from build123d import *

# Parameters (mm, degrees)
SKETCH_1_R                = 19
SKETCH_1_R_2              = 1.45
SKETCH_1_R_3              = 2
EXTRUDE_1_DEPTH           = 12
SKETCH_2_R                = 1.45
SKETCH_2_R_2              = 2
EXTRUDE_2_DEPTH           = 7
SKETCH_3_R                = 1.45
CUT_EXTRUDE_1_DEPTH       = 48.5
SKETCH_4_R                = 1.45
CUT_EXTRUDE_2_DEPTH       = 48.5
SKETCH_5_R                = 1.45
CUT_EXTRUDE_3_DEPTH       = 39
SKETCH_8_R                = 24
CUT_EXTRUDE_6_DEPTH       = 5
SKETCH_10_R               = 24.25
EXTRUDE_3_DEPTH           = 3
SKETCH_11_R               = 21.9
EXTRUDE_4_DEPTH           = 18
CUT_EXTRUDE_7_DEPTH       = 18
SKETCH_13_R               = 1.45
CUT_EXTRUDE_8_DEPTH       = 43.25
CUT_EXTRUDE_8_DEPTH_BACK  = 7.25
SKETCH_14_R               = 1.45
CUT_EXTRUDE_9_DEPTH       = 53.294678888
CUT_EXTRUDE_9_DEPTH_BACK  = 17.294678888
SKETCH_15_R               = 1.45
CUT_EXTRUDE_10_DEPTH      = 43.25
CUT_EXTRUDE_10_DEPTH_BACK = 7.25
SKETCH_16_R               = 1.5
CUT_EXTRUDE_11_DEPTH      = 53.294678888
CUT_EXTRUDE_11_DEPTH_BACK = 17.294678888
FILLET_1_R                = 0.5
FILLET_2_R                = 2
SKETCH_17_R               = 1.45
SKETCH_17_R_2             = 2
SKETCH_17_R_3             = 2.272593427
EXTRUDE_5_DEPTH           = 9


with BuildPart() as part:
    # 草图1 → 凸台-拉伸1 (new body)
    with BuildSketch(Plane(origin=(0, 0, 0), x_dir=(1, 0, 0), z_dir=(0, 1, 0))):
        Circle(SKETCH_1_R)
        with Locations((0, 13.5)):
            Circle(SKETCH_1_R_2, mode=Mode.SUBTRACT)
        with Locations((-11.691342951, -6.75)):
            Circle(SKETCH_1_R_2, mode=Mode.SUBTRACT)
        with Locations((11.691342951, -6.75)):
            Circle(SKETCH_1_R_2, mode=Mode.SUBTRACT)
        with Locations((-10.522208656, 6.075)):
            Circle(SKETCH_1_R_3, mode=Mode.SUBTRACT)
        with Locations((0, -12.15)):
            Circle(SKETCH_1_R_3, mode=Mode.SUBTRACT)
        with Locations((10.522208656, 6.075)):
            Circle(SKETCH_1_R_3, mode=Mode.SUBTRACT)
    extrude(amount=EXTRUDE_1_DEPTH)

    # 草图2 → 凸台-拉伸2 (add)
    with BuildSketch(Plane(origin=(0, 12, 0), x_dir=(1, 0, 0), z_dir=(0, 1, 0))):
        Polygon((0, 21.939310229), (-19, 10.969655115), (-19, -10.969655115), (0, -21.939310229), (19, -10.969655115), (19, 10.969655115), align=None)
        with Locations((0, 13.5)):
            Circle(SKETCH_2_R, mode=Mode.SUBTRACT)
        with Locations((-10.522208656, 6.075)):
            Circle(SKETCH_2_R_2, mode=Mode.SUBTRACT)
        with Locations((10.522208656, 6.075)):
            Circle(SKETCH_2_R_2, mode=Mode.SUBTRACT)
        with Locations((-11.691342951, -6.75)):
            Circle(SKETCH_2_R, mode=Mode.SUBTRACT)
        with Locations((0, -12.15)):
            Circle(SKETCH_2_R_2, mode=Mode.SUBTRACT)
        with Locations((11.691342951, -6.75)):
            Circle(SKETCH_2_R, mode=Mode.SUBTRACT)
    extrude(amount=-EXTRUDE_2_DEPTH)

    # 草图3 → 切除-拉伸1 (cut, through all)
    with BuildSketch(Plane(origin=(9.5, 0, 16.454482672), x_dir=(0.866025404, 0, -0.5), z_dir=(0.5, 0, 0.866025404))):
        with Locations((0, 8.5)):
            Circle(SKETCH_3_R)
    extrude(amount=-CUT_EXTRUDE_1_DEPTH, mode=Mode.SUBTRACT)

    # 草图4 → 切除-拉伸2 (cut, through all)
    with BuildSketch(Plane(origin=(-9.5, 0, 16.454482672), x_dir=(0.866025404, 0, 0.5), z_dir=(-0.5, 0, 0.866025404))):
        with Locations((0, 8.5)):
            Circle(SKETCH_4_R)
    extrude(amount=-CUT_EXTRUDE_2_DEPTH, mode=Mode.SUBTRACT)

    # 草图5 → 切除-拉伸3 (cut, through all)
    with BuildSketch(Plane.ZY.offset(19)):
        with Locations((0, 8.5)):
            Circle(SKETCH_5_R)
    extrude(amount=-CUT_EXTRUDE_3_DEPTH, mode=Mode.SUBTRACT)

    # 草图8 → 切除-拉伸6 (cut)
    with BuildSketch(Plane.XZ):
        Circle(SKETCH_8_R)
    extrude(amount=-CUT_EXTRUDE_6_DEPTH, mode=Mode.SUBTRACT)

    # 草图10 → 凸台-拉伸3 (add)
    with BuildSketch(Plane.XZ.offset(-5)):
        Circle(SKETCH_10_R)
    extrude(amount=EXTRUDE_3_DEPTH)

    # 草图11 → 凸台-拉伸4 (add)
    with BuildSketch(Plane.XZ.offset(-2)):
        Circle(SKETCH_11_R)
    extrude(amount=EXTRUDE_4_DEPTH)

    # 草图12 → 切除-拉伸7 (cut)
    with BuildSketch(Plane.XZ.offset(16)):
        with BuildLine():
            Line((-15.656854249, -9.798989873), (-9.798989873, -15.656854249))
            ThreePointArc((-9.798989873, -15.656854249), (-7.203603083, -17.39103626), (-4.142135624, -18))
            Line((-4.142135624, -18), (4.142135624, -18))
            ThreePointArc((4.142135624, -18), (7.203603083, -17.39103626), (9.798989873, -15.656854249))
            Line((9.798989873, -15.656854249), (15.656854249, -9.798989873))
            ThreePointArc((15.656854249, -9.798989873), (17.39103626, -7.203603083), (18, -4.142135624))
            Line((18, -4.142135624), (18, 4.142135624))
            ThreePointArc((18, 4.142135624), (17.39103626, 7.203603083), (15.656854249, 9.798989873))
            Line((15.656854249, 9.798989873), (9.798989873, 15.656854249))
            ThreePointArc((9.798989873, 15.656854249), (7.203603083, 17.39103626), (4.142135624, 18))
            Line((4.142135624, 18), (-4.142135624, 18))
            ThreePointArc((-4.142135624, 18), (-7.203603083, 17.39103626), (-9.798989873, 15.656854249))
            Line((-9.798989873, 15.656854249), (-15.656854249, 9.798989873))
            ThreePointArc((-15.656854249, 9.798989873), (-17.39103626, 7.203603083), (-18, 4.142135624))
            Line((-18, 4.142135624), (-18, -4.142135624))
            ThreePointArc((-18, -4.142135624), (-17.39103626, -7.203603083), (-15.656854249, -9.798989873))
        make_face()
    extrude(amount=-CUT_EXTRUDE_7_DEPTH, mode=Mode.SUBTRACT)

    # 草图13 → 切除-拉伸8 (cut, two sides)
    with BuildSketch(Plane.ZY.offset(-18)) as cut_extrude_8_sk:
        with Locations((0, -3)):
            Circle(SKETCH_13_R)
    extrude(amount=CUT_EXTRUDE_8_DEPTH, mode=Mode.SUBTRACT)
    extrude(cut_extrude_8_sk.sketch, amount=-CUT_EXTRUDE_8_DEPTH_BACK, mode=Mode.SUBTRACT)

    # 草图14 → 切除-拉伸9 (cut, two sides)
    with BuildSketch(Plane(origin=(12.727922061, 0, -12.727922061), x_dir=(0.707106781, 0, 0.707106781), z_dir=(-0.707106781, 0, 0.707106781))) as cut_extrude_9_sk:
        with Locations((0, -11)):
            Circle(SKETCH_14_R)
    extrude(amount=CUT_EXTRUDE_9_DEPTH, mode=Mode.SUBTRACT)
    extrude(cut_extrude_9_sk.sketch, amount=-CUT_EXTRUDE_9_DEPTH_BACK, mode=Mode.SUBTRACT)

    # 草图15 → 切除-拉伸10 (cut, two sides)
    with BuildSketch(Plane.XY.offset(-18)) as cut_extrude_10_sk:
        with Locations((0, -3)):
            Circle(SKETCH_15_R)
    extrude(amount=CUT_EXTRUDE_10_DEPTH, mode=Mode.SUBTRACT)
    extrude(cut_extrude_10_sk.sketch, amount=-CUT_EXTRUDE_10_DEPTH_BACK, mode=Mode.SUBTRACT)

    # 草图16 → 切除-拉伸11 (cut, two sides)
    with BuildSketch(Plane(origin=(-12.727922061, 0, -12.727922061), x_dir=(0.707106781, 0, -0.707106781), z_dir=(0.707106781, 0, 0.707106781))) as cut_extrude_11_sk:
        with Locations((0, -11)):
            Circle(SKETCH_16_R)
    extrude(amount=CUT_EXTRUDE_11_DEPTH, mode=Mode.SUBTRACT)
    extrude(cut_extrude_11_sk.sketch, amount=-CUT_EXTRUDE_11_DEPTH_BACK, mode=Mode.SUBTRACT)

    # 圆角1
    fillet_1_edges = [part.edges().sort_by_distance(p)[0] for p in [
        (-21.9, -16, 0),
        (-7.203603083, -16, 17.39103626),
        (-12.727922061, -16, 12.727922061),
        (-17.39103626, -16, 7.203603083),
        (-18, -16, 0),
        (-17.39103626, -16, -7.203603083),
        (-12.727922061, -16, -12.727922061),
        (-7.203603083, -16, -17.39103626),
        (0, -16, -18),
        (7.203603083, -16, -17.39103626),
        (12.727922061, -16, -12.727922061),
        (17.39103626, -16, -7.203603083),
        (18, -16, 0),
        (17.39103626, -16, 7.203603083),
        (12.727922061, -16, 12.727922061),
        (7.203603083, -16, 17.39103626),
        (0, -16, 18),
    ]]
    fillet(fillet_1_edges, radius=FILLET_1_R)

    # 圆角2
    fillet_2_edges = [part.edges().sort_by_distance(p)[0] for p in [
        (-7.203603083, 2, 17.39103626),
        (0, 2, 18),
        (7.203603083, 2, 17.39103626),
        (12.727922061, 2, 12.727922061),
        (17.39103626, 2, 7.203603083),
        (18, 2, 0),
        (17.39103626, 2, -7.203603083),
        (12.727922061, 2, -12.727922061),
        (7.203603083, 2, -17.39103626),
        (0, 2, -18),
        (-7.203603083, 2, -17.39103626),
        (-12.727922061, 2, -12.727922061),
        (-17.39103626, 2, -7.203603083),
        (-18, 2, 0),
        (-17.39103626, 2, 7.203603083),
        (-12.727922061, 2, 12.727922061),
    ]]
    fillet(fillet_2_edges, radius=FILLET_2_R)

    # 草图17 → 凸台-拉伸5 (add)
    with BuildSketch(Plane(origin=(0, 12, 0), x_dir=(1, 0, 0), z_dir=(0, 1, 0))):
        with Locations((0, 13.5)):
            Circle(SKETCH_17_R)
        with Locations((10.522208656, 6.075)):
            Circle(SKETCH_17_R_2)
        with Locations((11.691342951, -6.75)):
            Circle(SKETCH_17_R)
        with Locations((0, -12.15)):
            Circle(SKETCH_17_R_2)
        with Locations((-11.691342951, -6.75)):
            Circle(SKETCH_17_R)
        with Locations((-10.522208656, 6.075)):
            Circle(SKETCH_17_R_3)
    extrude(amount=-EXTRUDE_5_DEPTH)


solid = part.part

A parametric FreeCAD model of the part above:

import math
import FreeCAD as App
import Part
import Sketcher

V = App.Vector
Q = App.Units.Quantity


def edges_at(feature, points):
    """Names of the edges that pass closest to the given points."""
    edges = feature.Shape.Edges
    near = lambda p: min(range(len(edges)), key=lambda i: edges[i].distToShape(Part.Vertex(*p))[0])
    return sorted({f"Edge{near(p) + 1}" for p in points})

doc = App.newDocument("Part")
body = doc.addObject("PartDesign::Body", "Body")

# Sketch on XZ plane
sketch1 = body.newObject("Sketcher::SketchObject", "Sketch")
sketch1.AttachmentSupport = (doc.getObject("XZ_Plane"), [""])
sketch1.MapMode = "FlatFace"
sketch1.addGeometry(Part.Circle(V(0, 0, 0), V(0, 0, 1), 19), False)
sketch1.addGeometry(Part.Circle(V(-11.7, 6.8, 0), V(0, 0, 1), 1.4), False)
sketch1.addGeometry(Part.Circle(V(0, 12.2, 0), V(0, 0, 1), 2), False)
sketch1.addGeometry(Part.Circle(V(11.7, 6.8, 0), V(0, 0, 1), 1.4), False)
sketch1.addGeometry(Part.Circle(V(-10.5, -6.1, 0), V(0, 0, 1), 2), False)
sketch1.addGeometry(Part.Circle(V(10.5, -6.1, 0), V(0, 0, 1), 2), False)
sketch1.addGeometry(Part.Circle(V(0, -13.5, 0), V(0, 0, 1), 1.4), False)
sketch1.addConstraint(Sketcher.Constraint("Coincident", 0, 3, -1, 1))
sketch1.addConstraint(Sketcher.Constraint("Equal", 1, 3))
sketch1.addConstraint(Sketcher.Constraint("Equal", 2, 4))
sketch1.addConstraint(Sketcher.Constraint("Equal", 4, 5))
sketch1.addConstraint(Sketcher.Constraint("Equal", 3, 6))
sketch1.addConstraint(Sketcher.Constraint("Symmetric", 1, 3, 3, 3, -2))
sketch1.addConstraint(Sketcher.Constraint("Symmetric", 4, 3, 5, 3, -2))
sketch1.addConstraint(Sketcher.Constraint("PointOnObject", 2, 3, -2))
sketch1.addConstraint(Sketcher.Constraint("PointOnObject", 6, 3, -2))
sketch1.addConstraint(Sketcher.Constraint("Diameter", 0, 38.0))
sketch1.addConstraint(Sketcher.Constraint("Diameter", 2, 4.0))
sketch1.addConstraint(Sketcher.Constraint("Diameter", 1, 2.9))
sketch1.addConstraint(Sketcher.Constraint("DistanceY", 6, 3, -1, 1, 13.5))
sketch1.addConstraint(Sketcher.Constraint("DistanceY", 1, 3, 2, 3, 5.4))
sketch1.addConstraint(Sketcher.Constraint("DistanceY", -1, 1, 1, 3, 6.75))
sketch1.addConstraint(Sketcher.Constraint("DistanceY", 4, 3, -1, 1, 6.075))
sketch1.addConstraint(Sketcher.Constraint("DistanceX", 4, 3, -1, 1, 10.522209))
sketch1.addConstraint(Sketcher.Constraint("DistanceX", 4, 3, 3, 3, 22.213552))
pad1 = body.newObject("PartDesign::Pad", "Pad")
pad1.Profile = sketch1
pad1.Length = 12
pad1.Reversed = True

# Sketch on XZ plane
sketch2 = body.newObject("Sketcher::SketchObject", "Sketch001")
sketch2.AttachmentSupport = (doc.getObject("XZ_Plane"), [""])
sketch2.MapMode = "FlatFace"
sketch2.AttachmentOffset = App.Placement(V(0, 0, -12), App.Rotation())
sketch2.addGeometry(Part.LineSegment(V(0, -21.9, 0), V(-19, -11, 0)), False)
sketch2.addGeometry(Part.LineSegment(V(-19, -11, 0), V(-19, 11, 0)), False)
sketch2.addGeometry(Part.LineSegment(V(-19, 11, 0), V(0, 21.9, 0)), False)
sketch2.addGeometry(Part.LineSegment(V(0, 21.9, 0), V(19, 11, 0)), False)
sketch2.addGeometry(Part.LineSegment(V(19, 11, 0), V(19, -11, 0)), False)
sketch2.addGeometry(Part.LineSegment(V(19, -11, 0), V(0, -21.9, 0)), False)
sketch2.addGeometry(Part.Circle(V(-11.7, 6.8, 0), V(0, 0, 1), 1.4), False)
sketch2.addGeometry(Part.Circle(V(0, 12.2, 0), V(0, 0, 1), 2), False)
sketch2.addGeometry(Part.Circle(V(11.7, 6.8, 0), V(0, 0, 1), 1.4), False)
sketch2.addGeometry(Part.Circle(V(-10.5, -6.1, 0), V(0, 0, 1), 2), False)
sketch2.addGeometry(Part.Circle(V(10.5, -6.1, 0), V(0, 0, 1), 2), False)
sketch2.addGeometry(Part.Circle(V(0, -13.5, 0), V(0, 0, 1), 1.4), False)
sketch2.addConstraint(Sketcher.Constraint("Coincident", 0, 2, 1, 1))
sketch2.addConstraint(Sketcher.Constraint("Coincident", 1, 2, 2, 1))
sketch2.addConstraint(Sketcher.Constraint("Coincident", 2, 2, 3, 1))
sketch2.addConstraint(Sketcher.Constraint("Coincident", 3, 2, 4, 1))
sketch2.addConstraint(Sketcher.Constraint("Coincident", 4, 2, 5, 1))
sketch2.addConstraint(Sketcher.Constraint("Coincident", 5, 2, 0, 1))
sketch2.addConstraint(Sketcher.Constraint("Vertical", 1))
sketch2.addConstraint(Sketcher.Constraint("Vertical", 4))
sketch2.addConstraint(Sketcher.Constraint("Equal", 6, 8))
sketch2.addConstraint(Sketcher.Constraint("Equal", 7, 9))
sketch2.addConstraint(Sketcher.Constraint("Equal", 9, 10))
sketch2.addConstraint(Sketcher.Constraint("Equal", 8, 11))
sketch2.addConstraint(Sketcher.Constraint("Symmetric", 0, 2, 3, 2, -1, 1))
sketch2.addConstraint(Sketcher.Constraint("Symmetric", 2, 2, 5, 2, -1, 1))
sketch2.addConstraint(Sketcher.Constraint("Symmetric", 6, 3, 8, 3, -2))
sketch2.addConstraint(Sketcher.Constraint("Symmetric", 9, 3, 10, 3, -2))
sketch2.addConstraint(Sketcher.Constraint("PointOnObject", 7, 3, -2))
sketch2.addConstraint(Sketcher.Constraint("PointOnObject", 11, 3, -2))
sketch2.addConstraint(Sketcher.Constraint("PointOnObject", 2, 2, -2))
sketch2.addConstraint(Sketcher.Constraint("Parallel", 2, 5))
sketch2.addConstraint(Sketcher.Constraint("Horizontal", 1, 2, 3, 2))
sketch2.addConstraint(Sketcher.Constraint("Diameter", 7, 4.0))
sketch2.addConstraint(Sketcher.Constraint("Diameter", 6, 2.9))
sketch2.addConstraint(Sketcher.Constraint("Angle", 0, Q("150 deg")))
sketch2.addConstraint(Sketcher.Constraint("DistanceX", 0, 2, -1, 1, 19.0))
sketch2.addConstraint(Sketcher.Constraint("DistanceY", 11, 3, -1, 1, 13.5))
sketch2.addConstraint(Sketcher.Constraint("DistanceY", 6, 3, 7, 3, 5.4))
sketch2.addConstraint(Sketcher.Constraint("DistanceY", -1, 1, 6, 3, 6.75))
sketch2.addConstraint(Sketcher.Constraint("DistanceY", 9, 3, -1, 1, 6.075))
sketch2.addConstraint(Sketcher.Constraint("DistanceY", 1, 1, 1, 2, 21.93931))
sketch2.addConstraint(Sketcher.Constraint("DistanceX", 9, 3, -1, 1, 10.522209))
sketch2.addConstraint(Sketcher.Constraint("DistanceX", 9, 3, 8, 3, 22.213552))
pad2 = body.newObject("PartDesign::Pad", "Pad001")
pad2.Profile = sketch2
pad2.Length = 7

# Sketch on an angled plane
sketch3 = body.newObject("Sketcher::SketchObject", "Sketch002")
sketch3.Placement = App.Placement(V(9.5, 0, 16.454483), App.Rotation(V(0.866025404, 0, -0.5), V(0, 1, 0), V(0.5, 0, 0.866025404), "ZXY"))
sketch3.addGeometry(Part.Circle(V(0, 8.5, 0), V(0, 0, 1), 1.4), False)
sketch3.addConstraint(Sketcher.Constraint("PointOnObject", 0, 3, -2))
sketch3.addConstraint(Sketcher.Constraint("Diameter", 0, 2.9))
sketch3.addConstraint(Sketcher.Constraint("DistanceY", -1, 1, 0, 3, 8.5))
pocket1 = body.newObject("PartDesign::Pocket", "Pocket")
pocket1.Profile = sketch3
pocket1.Type = "ThroughAll"

# Sketch on an angled plane
sketch4 = body.newObject("Sketcher::SketchObject", "Sketch003")
sketch4.Placement = App.Placement(V(-9.5, 0, 16.454483), App.Rotation(V(0.866025404, 0, 0.5), V(0, 1, 0), V(-0.5, 0, 0.866025404), "ZXY"))
sketch4.addGeometry(Part.Circle(V(0, 8.5, 0), V(0, 0, 1), 1.4), False)
sketch4.addConstraint(Sketcher.Constraint("PointOnObject", 0, 3, -2))
sketch4.addConstraint(Sketcher.Constraint("Diameter", 0, 2.9))
sketch4.addConstraint(Sketcher.Constraint("DistanceY", -1, 1, 0, 3, 8.5))
pocket2 = body.newObject("PartDesign::Pocket", "Pocket001")
pocket2.Profile = sketch4
pocket2.Type = "ThroughAll"

# Sketch on YZ plane
sketch5 = body.newObject("Sketcher::SketchObject", "Sketch004")
sketch5.AttachmentSupport = (doc.getObject("YZ_Plane"), [""])
sketch5.MapMode = "FlatFace"
sketch5.AttachmentOffset = App.Placement(V(0, 0, -19), App.Rotation())
sketch5.addGeometry(Part.Circle(V(8.5, 0, 0), V(0, 0, 1), 1.4), False)
sketch5.addConstraint(Sketcher.Constraint("PointOnObject", 0, 3, -1))
sketch5.addConstraint(Sketcher.Constraint("Diameter", 0, 2.9))
sketch5.addConstraint(Sketcher.Constraint("DistanceX", -1, 1, 0, 3, 8.5))
pocket3 = body.newObject("PartDesign::Pocket", "Pocket002")
pocket3.Profile = sketch5
pocket3.Type = "ThroughAll"
pocket3.Reversed = True

# Sketch on XZ plane
sketch6 = body.newObject("Sketcher::SketchObject", "Sketch005")
sketch6.AttachmentSupport = (doc.getObject("XZ_Plane"), [""])
sketch6.MapMode = "FlatFace"
sketch6.addGeometry(Part.Circle(V(0, 0, 0), V(0, 0, 1), 24), False)
sketch6.addConstraint(Sketcher.Constraint("Coincident", 0, 3, -1, 1))
sketch6.addConstraint(Sketcher.Constraint("Diameter", 0, 48.0))
pocket4 = body.newObject("PartDesign::Pocket", "Pocket003")
pocket4.Profile = sketch6
pocket4.Length = 5

# Sketch on XZ plane
sketch7 = body.newObject("Sketcher::SketchObject", "Sketch006")
sketch7.AttachmentSupport = (doc.getObject("XZ_Plane"), [""])
sketch7.MapMode = "FlatFace"
sketch7.AttachmentOffset = App.Placement(V(0, 0, -5), App.Rotation())
sketch7.addGeometry(Part.Circle(V(0, 0, 0), V(0, 0, 1), 24), False)
sketch7.addConstraint(Sketcher.Constraint("Coincident", 0, 3, -1, 1))
sketch7.addConstraint(Sketcher.Constraint("Diameter", 0, 48.5))
pad3 = body.newObject("PartDesign::Pad", "Pad002")
pad3.Profile = sketch7
pad3.Length = 3

# Sketch on XZ plane
sketch8 = body.newObject("Sketcher::SketchObject", "Sketch007")
sketch8.AttachmentSupport = (doc.getObject("XZ_Plane"), [""])
sketch8.MapMode = "FlatFace"
sketch8.AttachmentOffset = App.Placement(V(0, 0, -2), App.Rotation())
sketch8.addGeometry(Part.Circle(V(0, 0, 0), V(0, 0, 1), 22), False)
sketch8.addConstraint(Sketcher.Constraint("Coincident", 0, 3, -1, 1))
sketch8.addConstraint(Sketcher.Constraint("Diameter", 0, 43.8))
pad4 = body.newObject("PartDesign::Pad", "Pad003")
pad4.Profile = sketch8
pad4.Length = 18

# Sketch on XZ plane
sketch9 = body.newObject("Sketcher::SketchObject", "Sketch008")
sketch9.AttachmentSupport = (doc.getObject("XZ_Plane"), [""])
sketch9.MapMode = "FlatFace"
sketch9.AttachmentOffset = App.Placement(V(0, 0, 16), App.Rotation())
sketch9.addGeometry(Part.LineSegment(V(-16, -10, 0), V(-10, -16, 0)), False)
sketch9.addGeometry(Part.ArcOfCircle(Part.Circle(V(-4, -10, 0), V(0, 0, 1), 8), math.radians(-135), math.radians(-90)), False)
sketch9.addGeometry(Part.LineSegment(V(-4, -18, 0), V(4, -18, 0)), False)
sketch9.addGeometry(Part.ArcOfCircle(Part.Circle(V(4, -10, 0), V(0, 0, 1), 8), math.radians(-90), math.radians(-45)), False)
sketch9.addGeometry(Part.LineSegment(V(10, -16, 0), V(16, -10, 0)), False)
sketch9.addGeometry(Part.ArcOfCircle(Part.Circle(V(10, -4, 0), V(0, 0, 1), 8), math.radians(-45), math.radians(0)), False)
sketch9.addGeometry(Part.LineSegment(V(18, -4, 0), V(18, 4, 0)), False)
sketch9.addGeometry(Part.ArcOfCircle(Part.Circle(V(10, 4, 0), V(0, 0, 1), 8), math.radians(0), math.radians(45)), False)
sketch9.addGeometry(Part.LineSegment(V(16, 10, 0), V(10, 16, 0)), False)
sketch9.addGeometry(Part.ArcOfCircle(Part.Circle(V(4, 10, 0), V(0, 0, 1), 8), math.radians(45), math.radians(90)), False)
sketch9.addGeometry(Part.LineSegment(V(4, 18, 0), V(-4, 18, 0)), False)
sketch9.addGeometry(Part.ArcOfCircle(Part.Circle(V(-4, 10, 0), V(0, 0, 1), 8), math.radians(90), math.radians(135)), False)
sketch9.addGeometry(Part.LineSegment(V(-10, 16, 0), V(-16, 10, 0)), False)
sketch9.addGeometry(Part.ArcOfCircle(Part.Circle(V(-10, 4, 0), V(0, 0, 1), 8), math.radians(135), math.radians(180)), False)
sketch9.addGeometry(Part.LineSegment(V(-18, 4, 0), V(-18, -4, 0)), False)
sketch9.addGeometry(Part.ArcOfCircle(Part.Circle(V(-10, -4, 0), V(0, 0, 1), 8), math.radians(180), math.radians(225)), False)
sketch9.addConstraint(Sketcher.Constraint("Tangent", 0, 2, 1, 1))
sketch9.addConstraint(Sketcher.Constraint("Tangent", 1, 2, 2, 1))
sketch9.addConstraint(Sketcher.Constraint("Tangent", 2, 2, 3, 1))
sketch9.addConstraint(Sketcher.Constraint("Tangent", 3, 2, 4, 1))
sketch9.addConstraint(Sketcher.Constraint("Tangent", 4, 2, 5, 1))
sketch9.addConstraint(Sketcher.Constraint("Tangent", 5, 2, 6, 1))
sketch9.addConstraint(Sketcher.Constraint("Tangent", 6, 2, 7, 1))
sketch9.addConstraint(Sketcher.Constraint("Tangent", 7, 2, 8, 1))
sketch9.addConstraint(Sketcher.Constraint("Tangent", 8, 2, 9, 1))
sketch9.addConstraint(Sketcher.Constraint("Tangent", 9, 2, 10, 1))
sketch9.addConstraint(Sketcher.Constraint("Tangent", 10, 2, 11, 1))
sketch9.addConstraint(Sketcher.Constraint("Tangent", 11, 2, 12, 1))
sketch9.addConstraint(Sketcher.Constraint("Tangent", 12, 2, 13, 1))
sketch9.addConstraint(Sketcher.Constraint("Tangent", 13, 2, 14, 1))
sketch9.addConstraint(Sketcher.Constraint("Tangent", 14, 2, 15, 1))
sketch9.addConstraint(Sketcher.Constraint("Tangent", 15, 2, 0, 1))
sketch9.addConstraint(Sketcher.Constraint("Horizontal", 2))
sketch9.addConstraint(Sketcher.Constraint("Vertical", 6))
sketch9.addConstraint(Sketcher.Constraint("Horizontal", 10))
sketch9.addConstraint(Sketcher.Constraint("Vertical", 14))
sketch9.addConstraint(Sketcher.Constraint("Equal", 1, 3))
sketch9.addConstraint(Sketcher.Constraint("Equal", 3, 5))
sketch9.addConstraint(Sketcher.Constraint("Equal", 5, 7))
sketch9.addConstraint(Sketcher.Constraint("Equal", 7, 9))
sketch9.addConstraint(Sketcher.Constraint("Equal", 9, 11))
sketch9.addConstraint(Sketcher.Constraint("Equal", 11, 13))
sketch9.addConstraint(Sketcher.Constraint("Equal", 13, 15))
sketch9.addConstraint(Sketcher.Constraint("Symmetric", 1, 3, 9, 3, -1, 1))
sketch9.addConstraint(Sketcher.Constraint("Symmetric", 5, 3, 13, 3, -1, 1))
sketch9.addConstraint(Sketcher.Constraint("Symmetric", 0, 2, 3, 2, -2))
sketch9.addConstraint(Sketcher.Constraint("Symmetric", 8, 2, 11, 2, -2))
sketch9.addConstraint(Sketcher.Constraint("Perpendicular", 0, 4))
sketch9.addConstraint(Sketcher.Constraint("Equal", 10, 6))
sketch9.addConstraint(Sketcher.Constraint("Radius", 1, 8.0))
sketch9.addConstraint(Sketcher.Constraint("DistanceY", 1, 3, -1, 1, 10.0))
sketch9.addConstraint(Sketcher.Constraint("DistanceX", 2, 1, 2, 2, 8.284271))
pocket5 = body.newObject("PartDesign::Pocket", "Pocket004")
pocket5.Profile = sketch9
pocket5.Length = 18

# Sketch on YZ plane
sketch10 = body.newObject("Sketcher::SketchObject", "Sketch009")
sketch10.AttachmentSupport = (doc.getObject("YZ_Plane"), [""])
sketch10.MapMode = "FlatFace"
sketch10.AttachmentOffset = App.Placement(V(0, 0, 18), App.Rotation())
sketch10.addGeometry(Part.Circle(V(-3, 0, 0), V(0, 0, 1), 1.4), False)
sketch10.addConstraint(Sketcher.Constraint("PointOnObject", 0, 3, -1))
sketch10.addConstraint(Sketcher.Constraint("Diameter", 0, 2.9))
sketch10.addConstraint(Sketcher.Constraint("DistanceX", 0, 3, -1, 1, 3.0))
pocket6 = body.newObject("PartDesign::Pocket", "Pocket005")
pocket6.Profile = sketch10
pocket6.Type = "ThroughAll"
pocket6.Midplane = True

# Sketch on an angled plane
sketch11 = body.newObject("Sketcher::SketchObject", "Sketch010")
sketch11.Placement = App.Placement(V(12.727922, 0, -12.727922), App.Rotation(V(0.707106781, 0, 0.707106781), V(0, 0.999999999, 0), V(-0.707106781, 0, 0.707106781), "ZXY"))
sketch11.addGeometry(Part.Circle(V(0, -11, 0), V(0, 0, 1), 1.4), False)
sketch11.addConstraint(Sketcher.Constraint("PointOnObject", 0, 3, -2))
sketch11.addConstraint(Sketcher.Constraint("Diameter", 0, 2.9))
sketch11.addConstraint(Sketcher.Constraint("DistanceY", 0, 3, -1, 1, 11.0))
pocket7 = body.newObject("PartDesign::Pocket", "Pocket006")
pocket7.Profile = sketch11
pocket7.Type = "ThroughAll"
pocket7.Midplane = True

# Sketch on XY plane
sketch12 = body.newObject("Sketcher::SketchObject", "Sketch011")
sketch12.AttachmentSupport = (doc.getObject("XY_Plane"), [""])
sketch12.MapMode = "FlatFace"
sketch12.AttachmentOffset = App.Placement(V(0, 0, -18), App.Rotation())
sketch12.addGeometry(Part.Circle(V(0, -3, 0), V(0, 0, 1), 1.4), False)
sketch12.addConstraint(Sketcher.Constraint("PointOnObject", 0, 3, -2))
sketch12.addConstraint(Sketcher.Constraint("Diameter", 0, 2.9))
sketch12.addConstraint(Sketcher.Constraint("DistanceY", 0, 3, -1, 1, 3.0))
pocket8 = body.newObject("PartDesign::Pocket", "Pocket007")
pocket8.Profile = sketch12
pocket8.Type = "ThroughAll"
pocket8.Midplane = True

# Sketch on an angled plane
sketch13 = body.newObject("Sketcher::SketchObject", "Sketch012")
sketch13.Placement = App.Placement(V(-12.727922, 0, -12.727922), App.Rotation(V(0.707106781, 0, -0.707106781), V(0, 0.999999999, 0), V(0.707106781, 0, 0.707106781), "ZXY"))
sketch13.addGeometry(Part.Circle(V(0, -11, 0), V(0, 0, 1), 1.5), False)
sketch13.addConstraint(Sketcher.Constraint("PointOnObject", 0, 3, -2))
sketch13.addConstraint(Sketcher.Constraint("Diameter", 0, 3.0))
sketch13.addConstraint(Sketcher.Constraint("DistanceY", 0, 3, -1, 1, 11.0))
pocket9 = body.newObject("PartDesign::Pocket", "Pocket008")
pocket9.Profile = sketch13
pocket9.Type = "ThroughAll"
pocket9.Midplane = True
doc.recompute()

fillet = body.newObject("PartDesign::Fillet", "Fillet")
fillet.Base = (pocket9, edges_at(pocket9, [
    (-21.9, -16, 0),
    (-7.204, -16, 17.391),
    (-12.728, -16, 12.728),
    (-17.391, -16, 7.204),
    (-18, -16, 0),
    (-17.391, -16, -7.204),
    (-12.728, -16, -12.728),
    (-7.204, -16, -17.391),
    (0, -16, -18),
    (7.204, -16, -17.391),
    (12.728, -16, -12.728),
    (17.391, -16, -7.204),
    (18, -16, 0),
    (17.391, -16, 7.204),
    (12.728, -16, 12.728),
    (7.204, -16, 17.391),
    (0, -16, 18),
]))
fillet.Radius = 0.5
doc.recompute()

fillet2 = body.newObject("PartDesign::Fillet", "Fillet001")
fillet2.Base = (fillet, edges_at(fillet, [
    (-7.204, 2, 17.391),
    (0, 2, 18),
    (7.204, 2, 17.391),
    (12.728, 2, 12.728),
    (17.391, 2, 7.204),
    (18, 2, 0),
    (17.391, 2, -7.204),
    (12.728, 2, -12.728),
    (7.204, 2, -17.391),
    (0, 2, -18),
    (-7.204, 2, -17.391),
    (-12.728, 2, -12.728),
    (-17.391, 2, -7.204),
    (-18, 2, 0),
    (-17.391, 2, 7.204),
    (-12.728, 2, 12.728),
]))
fillet2.Radius = 2

# Sketch on XZ plane
sketch14 = body.newObject("Sketcher::SketchObject", "Sketch013")
sketch14.AttachmentSupport = (doc.getObject("XZ_Plane"), [""])
sketch14.MapMode = "FlatFace"
sketch14.AttachmentOffset = App.Placement(V(0, 0, -12), App.Rotation())
sketch14.addGeometry(Part.Circle(V(0, -13.5, 0), V(0, 0, 1), 1.4), False)
sketch14.addGeometry(Part.Circle(V(10.5, -6.1, 0), V(0, 0, 1), 2), False)
sketch14.addGeometry(Part.Circle(V(11.7, 6.8, 0), V(0, 0, 1), 1.4), False)
sketch14.addGeometry(Part.Circle(V(0, 12.2, 0), V(0, 0, 1), 2), False)
sketch14.addGeometry(Part.Circle(V(-11.7, 6.8, 0), V(0, 0, 1), 1.4), False)
sketch14.addGeometry(Part.Circle(V(-10.5, -6.1, 0), V(0, 0, 1), 2.3), False)
sketch14.addConstraint(Sketcher.Constraint("Equal", 0, 2))
sketch14.addConstraint(Sketcher.Constraint("Equal", 1, 3))
sketch14.addConstraint(Sketcher.Constraint("Equal", 2, 4))
sketch14.addConstraint(Sketcher.Constraint("Symmetric", 2, 3, 4, 3, -2))
sketch14.addConstraint(Sketcher.Constraint("Symmetric", 1, 3, 5, 3, -2))
sketch14.addConstraint(Sketcher.Constraint("PointOnObject", 0, 3, -2))
sketch14.addConstraint(Sketcher.Constraint("PointOnObject", 3, 3, -2))
sketch14.addConstraint(Sketcher.Constraint("Diameter", 1, 4.0))
sketch14.addConstraint(Sketcher.Constraint("Diameter", 0, 2.9))
sketch14.addConstraint(Sketcher.Constraint("DistanceY", 0, 3, -1, 1, 13.5))
sketch14.addConstraint(Sketcher.Constraint("DistanceY", 2, 3, 3, 3, 5.4))
sketch14.addConstraint(Sketcher.Constraint("DistanceY", -1, 1, 2, 3, 6.75))
sketch14.addConstraint(Sketcher.Constraint("Diameter", 5, 4.545187))
sketch14.addConstraint(Sketcher.Constraint("DistanceY", 1, 3, -1, 1, 6.075))
sketch14.addConstraint(Sketcher.Constraint("DistanceX", -1, 1, 1, 3, 10.522209))
sketch14.addConstraint(Sketcher.Constraint("DistanceX", 4, 3, 1, 3, 22.213552))
pad5 = body.newObject("PartDesign::Pad", "Pad004")
pad5.Profile = sketch14
pad5.Length = 9

doc.recompute()
